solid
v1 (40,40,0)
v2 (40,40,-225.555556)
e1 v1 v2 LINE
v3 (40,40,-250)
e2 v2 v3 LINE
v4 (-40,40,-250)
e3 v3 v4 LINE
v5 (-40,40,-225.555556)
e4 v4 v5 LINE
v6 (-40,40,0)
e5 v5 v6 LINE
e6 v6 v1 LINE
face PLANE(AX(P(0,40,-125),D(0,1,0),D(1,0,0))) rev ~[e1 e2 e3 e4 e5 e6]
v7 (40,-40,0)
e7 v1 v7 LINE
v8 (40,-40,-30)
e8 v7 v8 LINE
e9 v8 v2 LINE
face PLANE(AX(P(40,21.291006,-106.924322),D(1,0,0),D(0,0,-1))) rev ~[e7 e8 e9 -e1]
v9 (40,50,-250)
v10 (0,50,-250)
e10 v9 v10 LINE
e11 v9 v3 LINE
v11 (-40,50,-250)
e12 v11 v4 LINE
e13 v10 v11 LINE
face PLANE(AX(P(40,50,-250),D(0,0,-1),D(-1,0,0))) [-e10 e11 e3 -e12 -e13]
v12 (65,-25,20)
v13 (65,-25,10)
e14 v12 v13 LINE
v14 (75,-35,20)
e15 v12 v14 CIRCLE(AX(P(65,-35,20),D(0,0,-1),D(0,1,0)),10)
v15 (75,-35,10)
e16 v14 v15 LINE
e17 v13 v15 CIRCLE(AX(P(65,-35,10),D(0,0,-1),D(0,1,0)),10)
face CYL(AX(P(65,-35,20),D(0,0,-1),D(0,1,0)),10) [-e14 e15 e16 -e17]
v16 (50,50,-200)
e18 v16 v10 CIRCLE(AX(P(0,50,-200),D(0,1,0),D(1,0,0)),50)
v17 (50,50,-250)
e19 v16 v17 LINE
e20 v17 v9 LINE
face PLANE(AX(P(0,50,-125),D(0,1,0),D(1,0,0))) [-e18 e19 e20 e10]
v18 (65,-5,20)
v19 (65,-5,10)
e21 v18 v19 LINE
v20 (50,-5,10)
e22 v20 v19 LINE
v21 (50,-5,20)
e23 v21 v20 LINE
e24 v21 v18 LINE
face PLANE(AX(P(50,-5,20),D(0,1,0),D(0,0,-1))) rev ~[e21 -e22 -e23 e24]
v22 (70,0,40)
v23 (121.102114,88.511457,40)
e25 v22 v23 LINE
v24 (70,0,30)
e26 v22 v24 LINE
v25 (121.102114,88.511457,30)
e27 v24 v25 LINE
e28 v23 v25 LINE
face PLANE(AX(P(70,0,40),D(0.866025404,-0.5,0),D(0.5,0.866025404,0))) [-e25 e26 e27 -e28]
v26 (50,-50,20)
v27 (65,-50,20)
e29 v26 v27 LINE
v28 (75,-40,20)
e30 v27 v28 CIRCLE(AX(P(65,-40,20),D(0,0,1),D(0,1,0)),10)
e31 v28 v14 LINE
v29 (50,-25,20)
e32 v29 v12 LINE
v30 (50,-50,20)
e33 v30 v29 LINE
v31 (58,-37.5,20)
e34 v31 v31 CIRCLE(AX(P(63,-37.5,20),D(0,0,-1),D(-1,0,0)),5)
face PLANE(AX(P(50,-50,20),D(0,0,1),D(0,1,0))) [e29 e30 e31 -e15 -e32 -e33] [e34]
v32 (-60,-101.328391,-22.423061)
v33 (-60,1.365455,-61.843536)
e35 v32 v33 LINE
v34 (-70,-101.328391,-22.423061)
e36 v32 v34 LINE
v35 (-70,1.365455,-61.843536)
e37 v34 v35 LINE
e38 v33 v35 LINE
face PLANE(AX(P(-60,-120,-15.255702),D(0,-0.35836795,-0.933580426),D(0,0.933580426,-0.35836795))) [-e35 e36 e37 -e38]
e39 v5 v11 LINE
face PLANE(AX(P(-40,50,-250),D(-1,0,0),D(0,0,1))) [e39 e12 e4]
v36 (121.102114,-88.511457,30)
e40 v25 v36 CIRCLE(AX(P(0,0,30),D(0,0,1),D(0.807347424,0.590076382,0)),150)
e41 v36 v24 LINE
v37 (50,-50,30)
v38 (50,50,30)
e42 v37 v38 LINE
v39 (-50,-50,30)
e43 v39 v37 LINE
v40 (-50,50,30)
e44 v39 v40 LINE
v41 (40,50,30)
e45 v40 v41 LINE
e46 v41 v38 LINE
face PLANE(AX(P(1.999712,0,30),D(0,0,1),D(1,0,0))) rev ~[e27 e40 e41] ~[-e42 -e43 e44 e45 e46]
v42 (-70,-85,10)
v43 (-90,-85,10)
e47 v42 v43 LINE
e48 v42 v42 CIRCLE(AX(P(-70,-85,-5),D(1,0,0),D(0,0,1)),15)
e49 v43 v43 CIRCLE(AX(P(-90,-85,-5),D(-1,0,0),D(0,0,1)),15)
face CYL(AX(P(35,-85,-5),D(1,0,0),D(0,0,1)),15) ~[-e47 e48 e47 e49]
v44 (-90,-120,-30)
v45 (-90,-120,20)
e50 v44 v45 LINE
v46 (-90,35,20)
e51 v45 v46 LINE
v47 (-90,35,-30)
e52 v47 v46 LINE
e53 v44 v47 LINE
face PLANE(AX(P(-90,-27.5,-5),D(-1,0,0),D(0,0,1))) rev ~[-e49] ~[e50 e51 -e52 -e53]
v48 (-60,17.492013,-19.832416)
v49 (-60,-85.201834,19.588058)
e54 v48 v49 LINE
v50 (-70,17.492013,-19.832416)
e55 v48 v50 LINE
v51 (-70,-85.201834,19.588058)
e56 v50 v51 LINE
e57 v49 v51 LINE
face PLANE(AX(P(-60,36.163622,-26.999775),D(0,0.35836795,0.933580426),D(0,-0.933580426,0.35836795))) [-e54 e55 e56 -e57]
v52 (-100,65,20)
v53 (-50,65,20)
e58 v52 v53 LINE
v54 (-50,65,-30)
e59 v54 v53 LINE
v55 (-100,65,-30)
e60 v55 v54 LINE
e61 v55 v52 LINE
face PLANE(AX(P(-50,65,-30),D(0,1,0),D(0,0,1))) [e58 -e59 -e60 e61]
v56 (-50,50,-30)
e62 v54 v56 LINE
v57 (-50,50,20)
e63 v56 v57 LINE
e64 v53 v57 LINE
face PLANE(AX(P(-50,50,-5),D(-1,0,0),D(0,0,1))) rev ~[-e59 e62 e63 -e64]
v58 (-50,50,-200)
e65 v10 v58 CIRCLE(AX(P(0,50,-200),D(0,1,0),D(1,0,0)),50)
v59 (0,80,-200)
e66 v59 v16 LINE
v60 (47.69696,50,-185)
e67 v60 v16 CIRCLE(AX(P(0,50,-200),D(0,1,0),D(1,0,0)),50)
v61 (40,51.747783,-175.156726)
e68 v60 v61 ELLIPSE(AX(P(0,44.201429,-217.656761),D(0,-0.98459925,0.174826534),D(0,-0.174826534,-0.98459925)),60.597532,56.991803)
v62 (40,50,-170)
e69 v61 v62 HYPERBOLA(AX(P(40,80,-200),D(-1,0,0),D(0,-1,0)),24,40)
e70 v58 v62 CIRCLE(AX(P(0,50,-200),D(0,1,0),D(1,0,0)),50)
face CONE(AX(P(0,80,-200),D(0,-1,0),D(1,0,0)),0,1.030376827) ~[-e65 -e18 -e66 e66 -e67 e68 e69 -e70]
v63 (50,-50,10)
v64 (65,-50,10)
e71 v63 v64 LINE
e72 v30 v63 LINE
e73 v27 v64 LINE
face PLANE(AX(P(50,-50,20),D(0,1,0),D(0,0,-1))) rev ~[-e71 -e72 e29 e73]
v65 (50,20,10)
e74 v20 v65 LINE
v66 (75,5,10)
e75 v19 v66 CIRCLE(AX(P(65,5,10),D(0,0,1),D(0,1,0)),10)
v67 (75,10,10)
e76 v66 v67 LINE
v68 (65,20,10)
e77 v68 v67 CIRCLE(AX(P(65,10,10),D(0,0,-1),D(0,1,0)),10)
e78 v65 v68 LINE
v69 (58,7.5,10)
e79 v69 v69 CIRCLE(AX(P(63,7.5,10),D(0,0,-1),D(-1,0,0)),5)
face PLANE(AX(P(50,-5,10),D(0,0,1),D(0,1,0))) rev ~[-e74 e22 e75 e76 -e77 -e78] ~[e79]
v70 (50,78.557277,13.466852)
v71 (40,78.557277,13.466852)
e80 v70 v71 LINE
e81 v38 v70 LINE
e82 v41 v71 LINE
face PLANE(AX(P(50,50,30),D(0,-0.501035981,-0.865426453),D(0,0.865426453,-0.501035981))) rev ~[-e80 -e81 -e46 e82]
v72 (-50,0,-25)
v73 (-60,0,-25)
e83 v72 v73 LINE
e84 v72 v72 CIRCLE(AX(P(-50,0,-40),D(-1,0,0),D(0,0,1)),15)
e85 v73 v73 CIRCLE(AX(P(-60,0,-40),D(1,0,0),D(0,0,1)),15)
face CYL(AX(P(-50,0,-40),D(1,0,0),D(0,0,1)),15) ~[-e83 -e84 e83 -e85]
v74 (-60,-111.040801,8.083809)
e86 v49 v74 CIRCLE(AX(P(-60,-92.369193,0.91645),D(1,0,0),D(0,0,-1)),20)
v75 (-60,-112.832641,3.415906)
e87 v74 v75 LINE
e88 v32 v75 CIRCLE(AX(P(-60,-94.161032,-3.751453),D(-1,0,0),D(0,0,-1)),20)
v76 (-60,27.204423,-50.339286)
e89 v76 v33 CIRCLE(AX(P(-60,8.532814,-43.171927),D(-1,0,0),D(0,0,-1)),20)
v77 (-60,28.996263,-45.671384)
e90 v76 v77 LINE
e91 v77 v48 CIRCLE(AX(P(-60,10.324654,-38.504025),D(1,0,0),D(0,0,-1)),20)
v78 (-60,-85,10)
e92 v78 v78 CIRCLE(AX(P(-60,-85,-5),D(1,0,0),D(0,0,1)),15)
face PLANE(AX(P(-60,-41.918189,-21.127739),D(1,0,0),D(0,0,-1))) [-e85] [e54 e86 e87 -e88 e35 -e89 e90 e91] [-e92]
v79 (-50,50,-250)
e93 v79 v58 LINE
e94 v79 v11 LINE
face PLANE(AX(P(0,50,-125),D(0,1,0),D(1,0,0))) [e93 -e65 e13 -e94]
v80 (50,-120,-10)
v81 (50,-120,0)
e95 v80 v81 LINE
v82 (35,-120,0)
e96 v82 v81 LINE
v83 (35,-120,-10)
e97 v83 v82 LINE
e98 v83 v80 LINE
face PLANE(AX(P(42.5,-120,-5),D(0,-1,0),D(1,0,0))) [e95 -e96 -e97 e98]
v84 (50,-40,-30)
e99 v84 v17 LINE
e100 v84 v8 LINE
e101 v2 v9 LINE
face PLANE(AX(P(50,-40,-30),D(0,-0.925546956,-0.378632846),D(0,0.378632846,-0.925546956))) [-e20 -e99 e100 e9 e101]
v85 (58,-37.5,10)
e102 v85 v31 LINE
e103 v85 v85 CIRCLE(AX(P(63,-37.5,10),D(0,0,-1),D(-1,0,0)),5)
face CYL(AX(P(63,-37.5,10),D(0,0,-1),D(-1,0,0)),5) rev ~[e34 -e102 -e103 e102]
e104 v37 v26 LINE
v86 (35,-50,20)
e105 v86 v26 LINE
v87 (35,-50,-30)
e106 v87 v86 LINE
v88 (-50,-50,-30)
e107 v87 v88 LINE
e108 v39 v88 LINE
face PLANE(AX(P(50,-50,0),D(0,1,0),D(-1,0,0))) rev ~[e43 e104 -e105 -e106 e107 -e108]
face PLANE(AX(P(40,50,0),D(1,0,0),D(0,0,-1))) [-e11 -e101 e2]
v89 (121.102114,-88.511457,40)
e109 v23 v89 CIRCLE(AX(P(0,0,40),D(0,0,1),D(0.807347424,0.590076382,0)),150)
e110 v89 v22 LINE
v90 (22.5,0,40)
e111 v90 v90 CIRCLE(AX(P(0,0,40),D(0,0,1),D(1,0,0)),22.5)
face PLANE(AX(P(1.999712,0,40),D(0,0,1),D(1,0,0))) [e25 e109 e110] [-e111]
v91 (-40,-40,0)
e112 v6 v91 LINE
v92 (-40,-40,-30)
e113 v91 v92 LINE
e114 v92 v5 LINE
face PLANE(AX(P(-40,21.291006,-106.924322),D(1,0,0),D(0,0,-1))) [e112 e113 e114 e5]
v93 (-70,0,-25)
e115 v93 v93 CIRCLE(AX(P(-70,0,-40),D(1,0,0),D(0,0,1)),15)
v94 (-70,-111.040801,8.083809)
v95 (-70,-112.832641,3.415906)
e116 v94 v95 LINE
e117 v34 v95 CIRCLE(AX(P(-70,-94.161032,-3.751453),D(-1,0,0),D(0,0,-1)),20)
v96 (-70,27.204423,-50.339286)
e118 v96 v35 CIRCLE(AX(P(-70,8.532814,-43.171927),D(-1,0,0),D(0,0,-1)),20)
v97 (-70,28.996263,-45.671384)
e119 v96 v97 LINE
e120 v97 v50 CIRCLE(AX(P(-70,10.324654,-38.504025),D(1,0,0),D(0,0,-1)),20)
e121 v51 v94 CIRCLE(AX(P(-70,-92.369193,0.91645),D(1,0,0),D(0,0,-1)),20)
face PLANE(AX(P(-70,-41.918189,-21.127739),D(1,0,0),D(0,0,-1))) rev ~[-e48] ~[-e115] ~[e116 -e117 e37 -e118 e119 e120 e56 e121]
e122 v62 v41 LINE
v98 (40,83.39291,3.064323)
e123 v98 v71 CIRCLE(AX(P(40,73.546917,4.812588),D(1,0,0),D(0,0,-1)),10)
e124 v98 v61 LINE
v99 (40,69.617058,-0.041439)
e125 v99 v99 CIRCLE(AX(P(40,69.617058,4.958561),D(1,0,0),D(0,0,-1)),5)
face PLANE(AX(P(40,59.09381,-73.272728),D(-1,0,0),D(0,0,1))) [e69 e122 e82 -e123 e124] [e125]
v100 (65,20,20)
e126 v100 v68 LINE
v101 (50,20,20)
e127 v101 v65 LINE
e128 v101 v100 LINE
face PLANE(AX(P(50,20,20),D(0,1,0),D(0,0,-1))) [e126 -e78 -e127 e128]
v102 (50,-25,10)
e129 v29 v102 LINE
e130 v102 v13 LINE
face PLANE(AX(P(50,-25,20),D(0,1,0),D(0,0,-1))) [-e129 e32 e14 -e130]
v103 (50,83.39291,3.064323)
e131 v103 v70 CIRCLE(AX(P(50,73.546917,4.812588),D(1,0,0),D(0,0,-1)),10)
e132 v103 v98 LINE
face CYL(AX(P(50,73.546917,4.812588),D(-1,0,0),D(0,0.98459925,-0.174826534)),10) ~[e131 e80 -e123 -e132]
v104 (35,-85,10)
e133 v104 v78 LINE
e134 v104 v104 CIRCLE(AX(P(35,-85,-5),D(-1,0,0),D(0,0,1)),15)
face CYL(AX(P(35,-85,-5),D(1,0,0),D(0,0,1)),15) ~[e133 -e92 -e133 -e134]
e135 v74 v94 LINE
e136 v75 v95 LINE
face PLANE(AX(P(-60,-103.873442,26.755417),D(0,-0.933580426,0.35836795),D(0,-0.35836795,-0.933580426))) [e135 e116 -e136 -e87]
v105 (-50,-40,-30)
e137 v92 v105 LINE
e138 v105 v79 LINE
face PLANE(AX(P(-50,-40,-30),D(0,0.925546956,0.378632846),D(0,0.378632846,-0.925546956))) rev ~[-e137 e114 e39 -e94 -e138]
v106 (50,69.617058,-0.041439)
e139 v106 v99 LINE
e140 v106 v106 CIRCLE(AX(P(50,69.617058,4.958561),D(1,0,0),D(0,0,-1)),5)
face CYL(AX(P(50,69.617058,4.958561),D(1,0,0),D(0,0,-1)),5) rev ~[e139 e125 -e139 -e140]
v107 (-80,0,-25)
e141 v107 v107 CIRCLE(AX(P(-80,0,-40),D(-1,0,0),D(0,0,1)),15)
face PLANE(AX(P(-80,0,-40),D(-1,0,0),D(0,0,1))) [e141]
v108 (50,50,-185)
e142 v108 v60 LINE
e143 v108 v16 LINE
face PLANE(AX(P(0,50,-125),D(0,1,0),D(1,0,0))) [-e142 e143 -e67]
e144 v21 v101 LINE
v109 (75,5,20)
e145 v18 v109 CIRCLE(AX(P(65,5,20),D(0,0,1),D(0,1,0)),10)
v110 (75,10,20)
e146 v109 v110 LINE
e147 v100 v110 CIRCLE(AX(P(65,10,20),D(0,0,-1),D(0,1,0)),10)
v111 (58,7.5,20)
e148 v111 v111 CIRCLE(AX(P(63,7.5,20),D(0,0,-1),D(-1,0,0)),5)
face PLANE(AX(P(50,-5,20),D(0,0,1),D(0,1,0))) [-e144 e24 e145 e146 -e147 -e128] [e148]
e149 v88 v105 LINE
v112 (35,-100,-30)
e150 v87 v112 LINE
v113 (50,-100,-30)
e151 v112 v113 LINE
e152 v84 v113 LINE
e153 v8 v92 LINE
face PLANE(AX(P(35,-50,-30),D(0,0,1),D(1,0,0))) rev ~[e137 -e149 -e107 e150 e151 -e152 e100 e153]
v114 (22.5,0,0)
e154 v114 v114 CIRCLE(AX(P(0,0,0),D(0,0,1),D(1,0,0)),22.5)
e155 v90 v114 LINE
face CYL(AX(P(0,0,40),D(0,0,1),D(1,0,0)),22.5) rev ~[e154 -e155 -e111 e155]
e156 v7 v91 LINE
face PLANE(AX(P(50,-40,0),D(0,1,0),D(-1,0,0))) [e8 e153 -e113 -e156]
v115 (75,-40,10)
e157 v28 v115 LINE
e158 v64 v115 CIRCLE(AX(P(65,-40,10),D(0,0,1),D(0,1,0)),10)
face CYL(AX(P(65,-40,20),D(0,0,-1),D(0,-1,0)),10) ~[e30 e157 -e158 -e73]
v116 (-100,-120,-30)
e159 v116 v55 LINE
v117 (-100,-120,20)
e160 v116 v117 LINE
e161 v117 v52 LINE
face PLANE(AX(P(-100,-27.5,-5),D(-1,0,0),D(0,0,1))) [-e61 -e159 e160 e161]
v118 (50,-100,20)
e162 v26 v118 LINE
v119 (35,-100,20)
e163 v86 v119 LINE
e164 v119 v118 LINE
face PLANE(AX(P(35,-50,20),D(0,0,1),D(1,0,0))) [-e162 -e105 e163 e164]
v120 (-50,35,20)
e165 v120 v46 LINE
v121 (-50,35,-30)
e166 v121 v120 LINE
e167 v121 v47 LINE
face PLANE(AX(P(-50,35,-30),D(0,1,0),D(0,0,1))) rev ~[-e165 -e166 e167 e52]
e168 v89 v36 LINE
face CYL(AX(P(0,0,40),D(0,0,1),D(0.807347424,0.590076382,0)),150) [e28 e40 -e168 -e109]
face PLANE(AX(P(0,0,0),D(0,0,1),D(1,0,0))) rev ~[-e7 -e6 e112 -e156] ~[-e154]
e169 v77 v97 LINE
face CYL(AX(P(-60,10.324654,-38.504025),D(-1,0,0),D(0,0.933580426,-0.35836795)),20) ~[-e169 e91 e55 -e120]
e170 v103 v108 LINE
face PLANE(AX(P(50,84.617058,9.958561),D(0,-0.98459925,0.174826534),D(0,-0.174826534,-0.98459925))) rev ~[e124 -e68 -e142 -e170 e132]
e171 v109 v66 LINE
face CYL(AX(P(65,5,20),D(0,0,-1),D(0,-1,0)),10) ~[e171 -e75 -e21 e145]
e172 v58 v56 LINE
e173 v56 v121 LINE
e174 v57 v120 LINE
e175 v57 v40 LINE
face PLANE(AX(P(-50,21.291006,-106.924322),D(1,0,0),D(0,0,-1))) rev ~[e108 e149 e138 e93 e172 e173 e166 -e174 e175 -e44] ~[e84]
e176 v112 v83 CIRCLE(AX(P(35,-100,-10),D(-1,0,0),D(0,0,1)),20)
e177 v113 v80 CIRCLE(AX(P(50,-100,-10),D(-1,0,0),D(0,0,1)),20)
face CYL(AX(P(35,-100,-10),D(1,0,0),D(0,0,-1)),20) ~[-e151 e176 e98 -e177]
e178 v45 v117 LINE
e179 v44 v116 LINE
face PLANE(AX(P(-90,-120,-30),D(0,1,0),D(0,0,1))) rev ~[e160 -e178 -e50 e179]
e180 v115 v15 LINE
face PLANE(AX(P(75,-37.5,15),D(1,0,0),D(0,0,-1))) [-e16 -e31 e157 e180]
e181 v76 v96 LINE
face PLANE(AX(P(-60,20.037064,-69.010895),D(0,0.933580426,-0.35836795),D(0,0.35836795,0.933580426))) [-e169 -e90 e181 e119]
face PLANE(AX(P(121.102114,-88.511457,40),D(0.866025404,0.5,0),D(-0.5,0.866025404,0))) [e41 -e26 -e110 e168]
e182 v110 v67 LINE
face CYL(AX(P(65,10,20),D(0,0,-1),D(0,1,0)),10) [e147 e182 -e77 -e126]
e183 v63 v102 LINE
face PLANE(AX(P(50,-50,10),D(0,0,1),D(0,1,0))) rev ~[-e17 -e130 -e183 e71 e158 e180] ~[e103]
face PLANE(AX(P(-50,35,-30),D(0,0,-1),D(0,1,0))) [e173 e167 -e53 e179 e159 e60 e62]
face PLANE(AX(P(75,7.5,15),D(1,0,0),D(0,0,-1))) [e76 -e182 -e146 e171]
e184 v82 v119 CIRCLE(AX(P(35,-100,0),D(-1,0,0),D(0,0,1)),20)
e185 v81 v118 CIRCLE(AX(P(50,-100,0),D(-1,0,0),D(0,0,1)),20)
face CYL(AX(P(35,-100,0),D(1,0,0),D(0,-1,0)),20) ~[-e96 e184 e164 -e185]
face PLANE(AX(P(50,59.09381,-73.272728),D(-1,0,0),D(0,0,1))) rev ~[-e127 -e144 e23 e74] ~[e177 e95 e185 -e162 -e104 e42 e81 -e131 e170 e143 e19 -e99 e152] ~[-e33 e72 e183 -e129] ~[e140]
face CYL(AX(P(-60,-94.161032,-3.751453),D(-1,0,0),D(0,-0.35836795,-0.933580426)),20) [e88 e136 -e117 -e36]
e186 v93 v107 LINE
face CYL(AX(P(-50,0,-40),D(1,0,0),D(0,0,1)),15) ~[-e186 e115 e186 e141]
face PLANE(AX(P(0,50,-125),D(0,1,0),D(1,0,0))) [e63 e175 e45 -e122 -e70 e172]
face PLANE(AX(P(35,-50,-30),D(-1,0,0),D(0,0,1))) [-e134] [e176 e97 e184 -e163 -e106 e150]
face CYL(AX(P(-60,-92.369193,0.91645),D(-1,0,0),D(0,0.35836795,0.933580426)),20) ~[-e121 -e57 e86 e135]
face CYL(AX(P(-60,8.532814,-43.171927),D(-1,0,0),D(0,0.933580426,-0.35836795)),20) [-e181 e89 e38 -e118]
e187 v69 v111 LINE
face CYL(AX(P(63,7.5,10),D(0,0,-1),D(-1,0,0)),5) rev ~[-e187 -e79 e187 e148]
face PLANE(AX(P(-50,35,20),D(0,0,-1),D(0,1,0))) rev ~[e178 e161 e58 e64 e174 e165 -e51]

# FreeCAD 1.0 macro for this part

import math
import FreeCAD as App
import Part
import Sketcher

V = App.Vector
Q = App.Units.Quantity


def edges_at(feature, points):
    """Names of the edges that pass closest to the given points."""
    edges = feature.Shape.Edges
    near = lambda p: min(range(len(edges)), key=lambda i: edges[i].distToShape(Part.Vertex(*p))[0])
    return sorted({f"Edge{near(p) + 1}" for p in points})


def add_polygon(sketch, points):
    """Adds a closed chain of lines whose ends are joined by coincident constraints."""
    first, n = sketch.GeometryCount, len(points)
    for a, b in zip(points, points[1:] + points[:1]):
        sketch.addGeometry(Part.LineSegment(App.Vector(*a, 0), App.Vector(*b, 0)), False)
    for i in range(n):
        sketch.addConstraint(Sketcher.Constraint("Coincident", first + i, 2, first + (i + 1) % n, 1))

doc = App.newDocument("Part")
params = doc.addObject("Spreadsheet::Sheet", "Params")
for row, (alias, value) in enumerate([
    ("sketch1_width", "100 mm"),
    ("pad1_length", "40 mm"),
    ("sketch2_diameter", "45 mm"),
    ("sketch3_width", "100 mm"),
    ("sketch3_height", "10 mm"),
    ("pad2_length", "30 mm"),
    ("sketch4_width", "90 mm"),
    ("sketch4_height", "30 mm"),
    ("sketch4_height2", "250 mm"),
    ("pad3_length", "10 mm"),
    ("sketch5_width", "90 mm"),
    ("sketch5_height", "250 mm"),
    ("sketch5_height2", "30 mm"),
    ("pad4_length", "10 mm"),
    ("sketch6_width", "80 mm"),
    ("sketch6_height", "250 mm"),
    ("pad5_length", "10 mm"),
    ("sketch7_width", "50 mm"),
    ("sketch7_height", "30 mm"),
    ("revolution_angle", "360 deg"),
    ("sketch8_width", "15 mm"),
    ("sketch8_height", "50 mm"),
    ("pad6_length", "70 mm"),
    ("sketch9_diameter", "30 mm"),
    ("pad7_length", "125 mm"),
    ("sketch10_diameter", "30 mm"),
    ("pad8_length", "30 mm"),
    ("sketch11_length", "45 mm"),
    ("sketch11_length2", "150 mm"),
    ("pad9_length", "10 mm"),
    ("fillet_radius", "20 mm"),
    ("sketch12_width", "185 mm"),
    ("sketch12_height", "50 mm"),
    ("pad10_length", "10 mm"),
    ("sketch13_width", "30 mm"),
    ("sketch13_height", "50 mm"),
    ("sketch14_radius", "150 mm"),
    ("sketch14_width", "100 mm"),
    ("pad12_length", "10 mm"),
    ("sketch15_height", "215 mm"),
    ("sketch15_length", "40 mm"),
    ("pad13_length", "10 mm"),
    ("sketch16_diameter", "10 mm"),
    ("sketch17_width", "25 mm"),
    ("sketch17_height", "10 mm"),
    ("pad14_length", "25 mm"),
    ("fillet2_radius", "10 mm"),
    ("sketch18_diameter", "10 mm"),
    ("sketch19_diameter", "10 mm"),
], start=1):
    params.set(f"A{row}", alias)
    params.set(f"B{row}", "=" + value)
    params.setAlias(f"B{row}", alias)

body = doc.addObject("PartDesign::Body", "Body")

# Sketch on XY plane
sketch1 = body.newObject("Sketcher::SketchObject", "Sketch")
sketch1.AttachmentSupport = (doc.getObject("XY_Plane"), [""])
sketch1.MapMode = "FlatFace"
add_polygon(sketch1, [(-50, 50), (-50, -50), (50, -50), (50, 50)])  # lines 0-3
sketch1.addConstraint(Sketcher.Constraint("Vertical", 0))
sketch1.addConstraint(Sketcher.Constraint("Horizontal", 1))
sketch1.addConstraint(Sketcher.Constraint("Vertical", 2))
sketch1.addConstraint(Sketcher.Constraint("Horizontal", 3))
sketch1.addConstraint(Sketcher.Constraint("Symmetric", 0, 2, 2, 2, -1, 1))
sketch1.addConstraint(Sketcher.Constraint("Equal", 3, 0))
sketch1.addConstraint(Sketcher.Constraint("DistanceX", 1, 1, 1, 2, 100.0))
sketch1.setExpression("Constraints[10]", "Params.sketch1_width")
pad1 = body.newObject("PartDesign::Pad", "Pad")
pad1.Profile = sketch1
pad1.setExpression("Length", "Params.pad1_length")

# Sketch on XY plane
sketch2 = body.newObject("Sketcher::SketchObject", "Sketch001")
sketch2.AttachmentSupport = (doc.getObject("XY_Plane"), [""])
sketch2.MapMode = "FlatFace"
sketch2.AttachmentOffset = App.Placement(V(0, 0, 40), App.Rotation())
sketch2.addGeometry(Part.Circle(V(0, 0, 0), V(0, 0, 1), 22), False)
sketch2.addConstraint(Sketcher.Constraint("Coincident", 0, 3, -1, 1))
sketch2.addConstraint(Sketcher.Constraint("Diameter", 0, 45.0))
sketch2.setExpression("Constraints[1]", "Params.sketch2_diameter")
pocket1 = body.newObject("PartDesign::Pocket", "Pocket")
pocket1.Profile = sketch2
pocket1.Type = "ThroughAll"

# Sketch on XY plane
sketch3 = body.newObject("Sketcher::SketchObject", "Sketch002")
sketch3.AttachmentSupport = (doc.getObject("XY_Plane"), [""])
sketch3.MapMode = "FlatFace"
add_polygon(sketch3, [(50, -40), (50, -50), (-50, -50), (-50, -40)])  # lines 0-3
sketch3.addConstraint(Sketcher.Constraint("Vertical", 0))
sketch3.addConstraint(Sketcher.Constraint("Horizontal", 1))
sketch3.addConstraint(Sketcher.Constraint("Vertical", 2))
sketch3.addConstraint(Sketcher.Constraint("Horizontal", 3))
sketch3.addConstraint(Sketcher.Constraint("DistanceX", 1, 2, 1, 1, 100.0))
sketch3.addConstraint(Sketcher.Constraint("DistanceY", 0, 2, 0, 1, 10.0))
sketch3.addConstraint(Sketcher.Constraint("DistanceX", -1, 1, 0, 2, 50.0))
sketch3.addConstraint(Sketcher.Constraint("DistanceY", 0, 2, -1, 1, 50.0))
sketch3.setExpression("Constraints[8]", "Params.sketch3_width")
sketch3.setExpression("Constraints[9]", "Params.sketch3_height")
pad2 = body.newObject("PartDesign::Pad", "Pad001")
pad2.Profile = sketch3
pad2.setExpression("Length", "Params.pad2_length")
pad2.Reversed = True

# Sketch on YZ plane
sketch4 = body.newObject("Sketcher::SketchObject", "Sketch003")
sketch4.AttachmentSupport = (doc.getObject("YZ_Plane"), [""])
sketch4.MapMode = "FlatFace"
sketch4.AttachmentOffset = App.Placement(V(0, 0, -50), App.Rotation())
add_polygon(sketch4, [(50, -250), (-40, -30), (-40, 0), (50, 0)])  # lines 0-3
sketch4.addConstraint(Sketcher.Constraint("Vertical", 1))
sketch4.addConstraint(Sketcher.Constraint("Horizontal", 2))
sketch4.addConstraint(Sketcher.Constraint("Vertical", 3))
sketch4.addConstraint(Sketcher.Constraint("PointOnObject", 1, 2, -1))
sketch4.addConstraint(Sketcher.Constraint("DistanceX", 2, 1, 2, 2, 90.0))
sketch4.addConstraint(Sketcher.Constraint("DistanceY", 1, 1, 1, 2, 30.0))
sketch4.addConstraint(Sketcher.Constraint("DistanceY", 3, 2, 3, 1, 250.0))
sketch4.addConstraint(Sketcher.Constraint("DistanceX", 0, 2, -1, 1, 40.0))
sketch4.setExpression("Constraints[8]", "Params.sketch4_width")
sketch4.setExpression("Constraints[9]", "Params.sketch4_height")
sketch4.setExpression("Constraints[10]", "Params.sketch4_height2")
pad3 = body.newObject("PartDesign::Pad", "Pad002")
pad3.Profile = sketch4
pad3.setExpression("Length", "Params.pad3_length")

# Sketch on YZ plane
sketch5 = body.newObject("Sketcher::SketchObject", "Sketch004")
sketch5.AttachmentSupport = (doc.getObject("YZ_Plane"), [""])
sketch5.MapMode = "FlatFace"
sketch5.AttachmentOffset = App.Placement(V(0, 0, 50), App.Rotation())
add_polygon(sketch5, [(-40, -30), (50, -250), (50, 0), (-40, 0)])  # lines 0-3
sketch5.addConstraint(Sketcher.Constraint("Vertical", 1))
sketch5.addConstraint(Sketcher.Constraint("Horizontal", 2))
sketch5.addConstraint(Sketcher.Constraint("Vertical", 3))
sketch5.addConstraint(Sketcher.Constraint("PointOnObject", 1, 2, -1))
sketch5.addConstraint(Sketcher.Constraint("DistanceX", 2, 2, 2, 1, 90.0))
sketch5.addConstraint(Sketcher.Constraint("DistanceY", 1, 1, 1, 2, 250.0))
sketch5.addConstraint(Sketcher.Constraint("DistanceY", 3, 2, 3, 1, 30.0))
sketch5.addConstraint(Sketcher.Constraint("DistanceX", -1, 1, 0, 2, 50.0))
sketch5.setExpression("Constraints[8]", "Params.sketch5_width")
sketch5.setExpression("Constraints[9]", "Params.sketch5_height")
sketch5.setExpression("Constraints[10]", "Params.sketch5_height2")
pad4 = body.newObject("PartDesign::Pad", "Pad003")
pad4.Profile = sketch5
pad4.setExpression("Length", "Params.pad4_length")
pad4.Reversed = True

# Sketch on XZ plane
sketch6 = body.newObject("Sketcher::SketchObject", "Sketch005")
sketch6.AttachmentSupport = (doc.getObject("XZ_Plane"), [""])
sketch6.MapMode = "FlatFace"
sketch6.AttachmentOffset = App.Placement(V(0, 0, -50), App.Rotation())
add_polygon(sketch6, [(40, -250), (-40, -250), (-40, 0), (40, 0)])  # lines 0-3
sketch6.addConstraint(Sketcher.Constraint("Horizontal", 0))
sketch6.addConstraint(Sketcher.Constraint("Vertical", 1))
sketch6.addConstraint(Sketcher.Constraint("Horizontal", 2))
sketch6.addConstraint(Sketcher.Constraint("Vertical", 3))
sketch6.addConstraint(Sketcher.Constraint("Symmetric", 1, 2, 2, 2, -1, 1))
sketch6.addConstraint(Sketcher.Constraint("DistanceX", 0, 2, 0, 1, 80.0))
sketch6.addConstraint(Sketcher.Constraint("DistanceY", 1, 1, 1, 2, 250.0))
sketch6.setExpression("Constraints[9]", "Params.sketch6_width")
sketch6.setExpression("Constraints[10]", "Params.sketch6_height")
pad5 = body.newObject("PartDesign::Pad", "Pad004")
pad5.Profile = sketch6
pad5.setExpression("Length", "Params.pad5_length")

# Sketch on XY plane
sketch7 = body.newObject("Sketcher::SketchObject", "Sketch006")
sketch7.AttachmentSupport = (doc.getObject("XY_Plane"), [""])
sketch7.MapMode = "FlatFace"
sketch7.AttachmentOffset = App.Placement(V(0, 0, -200), App.Rotation())
add_polygon(sketch7, [(0, 50), (0, 80), (50, 50)])  # lines 0-2
sketch7.addConstraint(Sketcher.Constraint("Vertical", 0))
sketch7.addConstraint(Sketcher.Constraint("Horizontal", 2))
sketch7.addConstraint(Sketcher.Constraint("PointOnObject", 0, 2, -2))
sketch7.addConstraint(Sketcher.Constraint("DistanceX", 2, 2, 2, 1, 50.0))
sketch7.addConstraint(Sketcher.Constraint("DistanceY", 0, 1, 0, 2, 30.0))
sketch7.addConstraint(Sketcher.Constraint("DistanceY", -1, 1, 0, 2, 80.0))
sketch7.setExpression("Constraints[6]", "Params.sketch7_width")
sketch7.setExpression("Constraints[7]", "Params.sketch7_height")
revolution = body.newObject("PartDesign::Revolution", "Revolution")
revolution.Profile = sketch7
revolution.ReferenceAxis = (sketch7, ["V_Axis"])
revolution.setExpression("Angle", "Params.revolution_angle")

# Sketch on XZ plane
sketch8 = body.newObject("Sketcher::SketchObject", "Sketch007")
sketch8.AttachmentSupport = (doc.getObject("XZ_Plane"), [""])
sketch8.MapMode = "FlatFace"
sketch8.AttachmentOffset = App.Placement(V(0, 0, 50), App.Rotation())
add_polygon(sketch8, [(35, 20), (35, -30), (50, -30), (50, 20)])  # lines 0-3
sketch8.addConstraint(Sketcher.Constraint("Vertical", 0))
sketch8.addConstraint(Sketcher.Constraint("Horizontal", 1))
sketch8.addConstraint(Sketcher.Constraint("Vertical", 2))
sketch8.addConstraint(Sketcher.Constraint("Horizontal", 3))
sketch8.addConstraint(Sketcher.Constraint("DistanceX", 1, 1, 1, 2, 15.0))
sketch8.addConstraint(Sketcher.Constraint("DistanceY", 0, 2, 0, 1, 50.0))
sketch8.addConstraint(Sketcher.Constraint("DistanceX", -1, 1, 0, 2, 35.0))
sketch8.addConstraint(Sketcher.Constraint("DistanceY", 0, 2, -1, 1, 30.0))
sketch8.setExpression("Constraints[8]", "Params.sketch8_width")
sketch8.setExpression("Constraints[9]", "Params.sketch8_height")
pad6 = body.newObject("PartDesign::Pad", "Pad005")
pad6.Profile = sketch8
pad6.setExpression("Length", "Params.pad6_length")

# Sketch on YZ plane
sketch9 = body.newObject("Sketcher::SketchObject", "Sketch008")
sketch9.AttachmentSupport = (doc.getObject("YZ_Plane"), [""])
sketch9.MapMode = "FlatFace"
sketch9.AttachmentOffset = App.Placement(V(0, 0, 35), App.Rotation())
sketch9.addGeometry(Part.Circle(V(-85, -5, 0), V(0, 0, 1), 15), False)
sketch9.addConstraint(Sketcher.Constraint("Diameter", 0, 30.0))
sketch9.addConstraint(Sketcher.Constraint("DistanceX", 0, 3, -1, 1, 85.0))
sketch9.addConstraint(Sketcher.Constraint("DistanceY", 0, 3, -1, 1, 5.0))
sketch9.setExpression("Constraints[0]", "Params.sketch9_diameter")
pad7 = body.newObject("PartDesign::Pad", "Pad006")
pad7.Profile = sketch9
pad7.setExpression("Length", "Params.pad7_length")
pad7.Reversed = True

# Sketch on YZ plane
sketch10 = body.newObject("Sketcher::SketchObject", "Sketch009")
sketch10.AttachmentSupport = (doc.getObject("YZ_Plane"), [""])
sketch10.MapMode = "FlatFace"
sketch10.AttachmentOffset = App.Placement(V(0, 0, -50), App.Rotation())
sketch10.addGeometry(Part.Circle(V(0, -40, 0), V(0, 0, 1), 15), False)
sketch10.addConstraint(Sketcher.Constraint("PointOnObject", 0, 3, -2))
sketch10.addConstraint(Sketcher.Constraint("Diameter", 0, 30.0))
sketch10.addConstraint(Sketcher.Constraint("DistanceY", 0, 3, -1, 1, 40.0))
sketch10.setExpression("Constraints[1]", "Params.sketch10_diameter")
pad8 = body.newObject("PartDesign::Pad", "Pad007")
pad8.Profile = sketch10
pad8.setExpression("Length", "Params.pad8_length")
pad8.Reversed = True

# Sketch on YZ plane
sketch11 = body.newObject("Sketcher::SketchObject", "Sketch010")
sketch11.AttachmentSupport = (doc.getObject("YZ_Plane"), [""])
sketch11.MapMode = "FlatFace"
sketch11.AttachmentOffset = App.Placement(V(0, 0, -60), App.Rotation())
add_polygon(sketch11, [(36, -27), (20, -69), (-120, -15), (-104, 27)])  # lines 0-3
sketch11.addConstraint(Sketcher.Constraint("Perpendicular", 0, 1))
sketch11.addConstraint(Sketcher.Constraint("Perpendicular", 1, 2))
sketch11.addConstraint(Sketcher.Constraint("Perpendicular", 2, 3))
sketch11.addConstraint(Sketcher.Constraint("Angle", 0, Q("-111 deg")))
sketch11.addConstraint(Sketcher.Constraint("Distance", 0, 45.0))
sketch11.addConstraint(Sketcher.Constraint("Distance", 1, 150.0))
sketch11.addConstraint(Sketcher.Constraint("DistanceX", 1, 2, -1, 1, 120.0))
sketch11.addConstraint(Sketcher.Constraint("DistanceY", 0, 2, -1, 1, 69.010895))
sketch11.setExpression("Constraints[8]", "Params.sketch11_length")
sketch11.setExpression("Constraints[9]", "Params.sketch11_length2")
pad9 = body.newObject("PartDesign::Pad", "Pad008")
pad9.Profile = sketch11
pad9.setExpression("Length", "Params.pad9_length")
pad9.Reversed = True
doc.recompute()

fillet = body.newObject("PartDesign::Fillet", "Fillet")
fillet.Base = (pad9, edges_at(pad9, [
    (-65, 20.037, -69.011),
    (-65, -120, -15.256),
    (-65, -103.873, 26.755),
    (-65, 36.164, -27),
    (42.5, -120, 20),
    (42.5, -120, -30),
]))
fillet.setExpression("Radius", "Params.fillet_radius")

# Sketch on YZ plane
sketch12 = body.newObject("Sketcher::SketchObject", "Sketch011")
sketch12.AttachmentSupport = (doc.getObject("YZ_Plane"), [""])
sketch12.MapMode = "FlatFace"
sketch12.AttachmentOffset = App.Placement(V(0, 0, -90), App.Rotation())
add_polygon(sketch12, [(65, -30), (-120, -30), (-120, 20), (65, 20)])  # lines 0-3
sketch12.addConstraint(Sketcher.Constraint("Horizontal", 0))
sketch12.addConstraint(Sketcher.Constraint("Vertical", 1))
sketch12.addConstraint(Sketcher.Constraint("Horizontal", 2))
sketch12.addConstraint(Sketcher.Constraint("Vertical", 3))
sketch12.addConstraint(Sketcher.Constraint("DistanceX", 0, 2, 0, 1, 185.0))
sketch12.addConstraint(Sketcher.Constraint("DistanceY", 1, 1, 1, 2, 50.0))
sketch12.addConstraint(Sketcher.Constraint("DistanceX", 0, 2, -1, 1, 120.0))
sketch12.addConstraint(Sketcher.Constraint("DistanceY", 0, 2, -1, 1, 30.0))
sketch12.setExpression("Constraints[8]", "Params.sketch12_width")
sketch12.setExpression("Constraints[9]", "Params.sketch12_height")
pad10 = body.newObject("PartDesign::Pad", "Pad009")
pad10.Profile = sketch12
pad10.setExpression("Length", "Params.pad10_length")
pad10.Reversed = True

# Sketch on YZ plane
sketch13 = body.newObject("Sketcher::SketchObject", "Sketch012")
sketch13.AttachmentSupport = (doc.getObject("YZ_Plane"), [""])
sketch13.MapMode = "FlatFace"
sketch13.AttachmentOffset = App.Placement(V(0, 0, -50), App.Rotation())
add_polygon(sketch13, [(65, -30), (35, -30), (35, 20), (65, 20)])  # lines 0-3
sketch13.addConstraint(Sketcher.Constraint("Horizontal", 0))
sketch13.addConstraint(Sketcher.Constraint("Vertical", 1))
sketch13.addConstraint(Sketcher.Constraint("Horizontal", 2))
sketch13.addConstraint(Sketcher.Constraint("Vertical", 3))
sketch13.addConstraint(Sketcher.Constraint("DistanceX", 0, 2, 0, 1, 30.0))
sketch13.addConstraint(Sketcher.Constraint("DistanceY", 1, 1, 1, 2, 50.0))
sketch13.addConstraint(Sketcher.Constraint("DistanceX", -1, 1, 0, 2, 35.0))
sketch13.addConstraint(Sketcher.Constraint("DistanceY", 0, 2, -1, 1, 30.0))
sketch13.setExpression("Constraints[8]", "Params.sketch13_width")
sketch13.setExpression("Constraints[9]", "Params.sketch13_height")
pad11 = body.newObject("PartDesign::Pad", "Pad010")
pad11.Profile = sketch13
pad11.Type = "UpToFirst"
pad11.Reversed = True

# Sketch on XY plane
sketch14 = body.newObject("Sketcher::SketchObject", "Sketch013")
sketch14.AttachmentSupport = (doc.getObject("XY_Plane"), [""])
sketch14.MapMode = "FlatFace"
sketch14.AttachmentOffset = App.Placement(V(0, 0, 40), App.Rotation())
sketch14.addGeometry(Part.LineSegment(V(70, 0, 0), V(121, 89, 0)), False)  # 0
sketch14.addGeometry(Part.ArcOfCircle(Part.Circle(V(0, 0, 0), V(0, 0, 1), 150), math.radians(36), math.radians(324)), False)  # 1
sketch14.addGeometry(Part.LineSegment(V(121, -89, 0), V(70, 0, 0)), False)  # 2
add_polygon(sketch14, [(50, -50), (-50, -50), (-50, 50), (50, 50)])  # lines 3-6
sketch14.addConstraint(Sketcher.Constraint("Coincident", 0, 2, 1, 1))
sketch14.addConstraint(Sketcher.Constraint("Coincident", 1, 2, 2, 1))
sketch14.addConstraint(Sketcher.Constraint("Coincident", 2, 2, 0, 1))
sketch14.addConstraint(Sketcher.Constraint("Horizontal", 3))
sketch14.addConstraint(Sketcher.Constraint("Vertical", 4))
sketch14.addConstraint(Sketcher.Constraint("Horizontal", 5))
sketch14.addConstraint(Sketcher.Constraint("Vertical", 6))
sketch14.addConstraint(Sketcher.Constraint("Coincident", 1, 3, -1, 1))
sketch14.addConstraint(Sketcher.Constraint("Symmetric", 3, 2, 5, 2, -1, 1))
sketch14.addConstraint(Sketcher.Constraint("PointOnObject", 2, 2, -1))
sketch14.addConstraint(Sketcher.Constraint("Vertical", 0, 2, 1, 2))
sketch14.addConstraint(Sketcher.Constraint("Equal", 5, 4))
sketch14.addConstraint(Sketcher.Constraint("Radius", 1, 150.0))
sketch14.addConstraint(Sketcher.Constraint("DistanceX", 3, 2, 3, 1, 100.0))
sketch14.addConstraint(Sketcher.Constraint("Angle", 0, Q("60 deg")))
sketch14.addConstraint(Sketcher.Constraint("DistanceX", -1, 1, 2, 2, 70.0))
sketch14.setExpression("Constraints[16]", "Params.sketch14_radius")
sketch14.setExpression("Constraints[17]", "Params.sketch14_width")
pad12 = body.newObject("PartDesign::Pad", "Pad011")
pad12.Profile = sketch14
pad12.setExpression("Length", "Params.pad12_length")
pad12.Reversed = True

# Sketch on YZ plane
sketch15 = body.newObject("Sketcher::SketchObject", "Sketch014")
sketch15.AttachmentSupport = (doc.getObject("YZ_Plane"), [""])
sketch15.MapMode = "FlatFace"
sketch15.AttachmentOffset = App.Placement(V(0, 0, 50), App.Rotation())
add_polygon(sketch15, [(85, 10), (50, 30), (50, -185)])  # lines 0-2
sketch15.addConstraint(Sketcher.Constraint("Vertical", 1))
sketch15.addConstraint(Sketcher.Constraint("DistanceY", 1, 2, 1, 1, 215.0))
sketch15.addConstraint(Sketcher.Constraint("Distance", 0, 40.0))
sketch15.addConstraint(Sketcher.Constraint("DistanceX", -1, 1, 0, 2, 50.0))
sketch15.addConstraint(Sketcher.Constraint("DistanceY", -1, 1, 0, 2, 30.0))
sketch15.addConstraint(Sketcher.Constraint("DistanceX", -1, 1, 2, 2, 84.617058))
sketch15.setExpression("Constraints[4]", "Params.sketch15_height")
sketch15.setExpression("Constraints[5]", "Params.sketch15_length")
pad13 = body.newObject("PartDesign::Pad", "Pad012")
pad13.Profile = sketch15
pad13.setExpression("Length", "Params.pad13_length")
pad13.Reversed = True

# Sketch on YZ plane
sketch16 = body.newObject("Sketcher::SketchObject", "Sketch015")
sketch16.AttachmentSupport = (doc.getObject("YZ_Plane"), [""])
sketch16.MapMode = "FlatFace"
sketch16.AttachmentOffset = App.Placement(V(0, 0, 50), App.Rotation())
sketch16.addGeometry(Part.Circle(V(70, 5, 0), V(0, 0, 1), 5), False)
sketch16.addConstraint(Sketcher.Constraint("Diameter", 0, 10.0))
sketch16.addConstraint(Sketcher.Constraint("DistanceX", -1, 1, 0, 3, 69.617058))
sketch16.addConstraint(Sketcher.Constraint("DistanceY", -1, 1, 0, 3, 4.958561))
sketch16.setExpression("Constraints[0]", "Params.sketch16_diameter")
pocket2 = body.newObject("PartDesign::Pocket", "Pocket001")
pocket2.Profile = sketch16
pocket2.Type = "UpToFirst"

# Sketch on YZ plane
sketch17 = body.newObject("Sketcher::SketchObject", "Sketch016")
sketch17.AttachmentSupport = (doc.getObject("YZ_Plane"), [""])
sketch17.MapMode = "FlatFace"
sketch17.AttachmentOffset = App.Placement(V(0, 0, 50), App.Rotation())
add_polygon(sketch17, [(20, 20), (-5, 20), (-5, 10), (20, 10)])  # lines 0-3
add_polygon(sketch17, [(-25, 20), (-50, 20), (-50, 10), (-25, 10)])  # lines 4-7
sketch17.addConstraint(Sketcher.Constraint("Horizontal", 0))
sketch17.addConstraint(Sketcher.Constraint("Vertical", 1))
sketch17.addConstraint(Sketcher.Constraint("Horizontal", 2))
sketch17.addConstraint(Sketcher.Constraint("Vertical", 3))
sketch17.addConstraint(Sketcher.Constraint("Horizontal", 4))
sketch17.addConstraint(Sketcher.Constraint("Vertical", 5))
sketch17.addConstraint(Sketcher.Constraint("Horizontal", 6))
sketch17.addConstraint(Sketcher.Constraint("Vertical", 7))
sketch17.addConstraint(Sketcher.Constraint("Horizontal", 3, 2, 4, 2))
sketch17.addConstraint(Sketcher.Constraint("Horizontal", 2, 2, 5, 2))
sketch17.addConstraint(Sketcher.Constraint("Equal", 2, 4))
sketch17.addConstraint(Sketcher.Constraint("DistanceX", 0, 2, 0, 1, 25.0))
sketch17.addConstraint(Sketcher.Constraint("DistanceY", 1, 2, 1, 1, 10.0))
sketch17.addConstraint(Sketcher.Constraint("DistanceX", 0, 2, -1, 1, 5.0))
sketch17.addConstraint(Sketcher.Constraint("DistanceY", -1, 1, 0, 2, 20.0))
sketch17.addConstraint(Sketcher.Constraint("DistanceX", 4, 2, -1, 1, 50.0))
sketch17.setExpression("Constraints[19]", "Params.sketch17_width")
sketch17.setExpression("Constraints[20]", "Params.sketch17_height")
pad14 = body.newObject("PartDesign::Pad", "Pad013")
pad14.Profile = sketch17
pad14.setExpression("Length", "Params.pad14_length")
doc.recompute()

fillet2 = body.newObject("PartDesign::Fillet", "Fillet001")
fillet2.Base = (pad14, edges_at(pad14, [
    (45, 84.617, 9.959),
    (75, 20, 15),
    (75, -5, 15),
    (75, -25, 15),
    (75, -50, 15),
]))
fillet2.setExpression("Radius", "Params.fillet2_radius")

# Sketch on XY plane
sketch18 = body.newObject("Sketcher::SketchObject", "Sketch017")
sketch18.AttachmentSupport = (doc.getObject("XY_Plane"), [""])
sketch18.MapMode = "FlatFace"
sketch18.AttachmentOffset = App.Placement(V(0, 0, 10), App.Rotation())
sketch18.addGeometry(Part.Circle(V(63, 8, 0), V(0, 0, 1), 5), False)
sketch18.addConstraint(Sketcher.Constraint("Diameter", 0, 10.0))
sketch18.addConstraint(Sketcher.Constraint("DistanceX", -1, 1, 0, 3, 63.0))
sketch18.addConstraint(Sketcher.Constraint("DistanceY", -1, 1, 0, 3, 7.5))
sketch18.setExpression("Constraints[0]", "Params.sketch18_diameter")
pocket3 = body.newObject("PartDesign::Pocket", "Pocket002")
pocket3.Profile = sketch18
pocket3.Type = "UpToFirst"
pocket3.Reversed = True

# Sketch on XY plane
sketch19 = body.newObject("Sketcher::SketchObject", "Sketch018")
sketch19.AttachmentSupport = (doc.getObject("XY_Plane"), [""])
sketch19.MapMode = "FlatFace"
sketch19.AttachmentOffset = App.Placement(V(0, 0, 10), App.Rotation())
sketch19.addGeometry(Part.Circle(V(63, -38, 0), V(0, 0, 1), 5), False)
sketch19.addConstraint(Sketcher.Constraint("Diameter", 0, 10.0))
sketch19.addConstraint(Sketcher.Constraint("DistanceX", -1, 1, 0, 3, 63.0))
sketch19.addConstraint(Sketcher.Constraint("DistanceY", 0, 3, -1, 1, 37.5))
sketch19.setExpression("Constraints[0]", "Params.sketch19_diameter")
pocket4 = body.newObject("PartDesign::Pocket", "Pocket003")
pocket4.Profile = sketch19
pocket4.Type = "UpToFirst"
pocket4.Reversed = True

doc.recompute()
